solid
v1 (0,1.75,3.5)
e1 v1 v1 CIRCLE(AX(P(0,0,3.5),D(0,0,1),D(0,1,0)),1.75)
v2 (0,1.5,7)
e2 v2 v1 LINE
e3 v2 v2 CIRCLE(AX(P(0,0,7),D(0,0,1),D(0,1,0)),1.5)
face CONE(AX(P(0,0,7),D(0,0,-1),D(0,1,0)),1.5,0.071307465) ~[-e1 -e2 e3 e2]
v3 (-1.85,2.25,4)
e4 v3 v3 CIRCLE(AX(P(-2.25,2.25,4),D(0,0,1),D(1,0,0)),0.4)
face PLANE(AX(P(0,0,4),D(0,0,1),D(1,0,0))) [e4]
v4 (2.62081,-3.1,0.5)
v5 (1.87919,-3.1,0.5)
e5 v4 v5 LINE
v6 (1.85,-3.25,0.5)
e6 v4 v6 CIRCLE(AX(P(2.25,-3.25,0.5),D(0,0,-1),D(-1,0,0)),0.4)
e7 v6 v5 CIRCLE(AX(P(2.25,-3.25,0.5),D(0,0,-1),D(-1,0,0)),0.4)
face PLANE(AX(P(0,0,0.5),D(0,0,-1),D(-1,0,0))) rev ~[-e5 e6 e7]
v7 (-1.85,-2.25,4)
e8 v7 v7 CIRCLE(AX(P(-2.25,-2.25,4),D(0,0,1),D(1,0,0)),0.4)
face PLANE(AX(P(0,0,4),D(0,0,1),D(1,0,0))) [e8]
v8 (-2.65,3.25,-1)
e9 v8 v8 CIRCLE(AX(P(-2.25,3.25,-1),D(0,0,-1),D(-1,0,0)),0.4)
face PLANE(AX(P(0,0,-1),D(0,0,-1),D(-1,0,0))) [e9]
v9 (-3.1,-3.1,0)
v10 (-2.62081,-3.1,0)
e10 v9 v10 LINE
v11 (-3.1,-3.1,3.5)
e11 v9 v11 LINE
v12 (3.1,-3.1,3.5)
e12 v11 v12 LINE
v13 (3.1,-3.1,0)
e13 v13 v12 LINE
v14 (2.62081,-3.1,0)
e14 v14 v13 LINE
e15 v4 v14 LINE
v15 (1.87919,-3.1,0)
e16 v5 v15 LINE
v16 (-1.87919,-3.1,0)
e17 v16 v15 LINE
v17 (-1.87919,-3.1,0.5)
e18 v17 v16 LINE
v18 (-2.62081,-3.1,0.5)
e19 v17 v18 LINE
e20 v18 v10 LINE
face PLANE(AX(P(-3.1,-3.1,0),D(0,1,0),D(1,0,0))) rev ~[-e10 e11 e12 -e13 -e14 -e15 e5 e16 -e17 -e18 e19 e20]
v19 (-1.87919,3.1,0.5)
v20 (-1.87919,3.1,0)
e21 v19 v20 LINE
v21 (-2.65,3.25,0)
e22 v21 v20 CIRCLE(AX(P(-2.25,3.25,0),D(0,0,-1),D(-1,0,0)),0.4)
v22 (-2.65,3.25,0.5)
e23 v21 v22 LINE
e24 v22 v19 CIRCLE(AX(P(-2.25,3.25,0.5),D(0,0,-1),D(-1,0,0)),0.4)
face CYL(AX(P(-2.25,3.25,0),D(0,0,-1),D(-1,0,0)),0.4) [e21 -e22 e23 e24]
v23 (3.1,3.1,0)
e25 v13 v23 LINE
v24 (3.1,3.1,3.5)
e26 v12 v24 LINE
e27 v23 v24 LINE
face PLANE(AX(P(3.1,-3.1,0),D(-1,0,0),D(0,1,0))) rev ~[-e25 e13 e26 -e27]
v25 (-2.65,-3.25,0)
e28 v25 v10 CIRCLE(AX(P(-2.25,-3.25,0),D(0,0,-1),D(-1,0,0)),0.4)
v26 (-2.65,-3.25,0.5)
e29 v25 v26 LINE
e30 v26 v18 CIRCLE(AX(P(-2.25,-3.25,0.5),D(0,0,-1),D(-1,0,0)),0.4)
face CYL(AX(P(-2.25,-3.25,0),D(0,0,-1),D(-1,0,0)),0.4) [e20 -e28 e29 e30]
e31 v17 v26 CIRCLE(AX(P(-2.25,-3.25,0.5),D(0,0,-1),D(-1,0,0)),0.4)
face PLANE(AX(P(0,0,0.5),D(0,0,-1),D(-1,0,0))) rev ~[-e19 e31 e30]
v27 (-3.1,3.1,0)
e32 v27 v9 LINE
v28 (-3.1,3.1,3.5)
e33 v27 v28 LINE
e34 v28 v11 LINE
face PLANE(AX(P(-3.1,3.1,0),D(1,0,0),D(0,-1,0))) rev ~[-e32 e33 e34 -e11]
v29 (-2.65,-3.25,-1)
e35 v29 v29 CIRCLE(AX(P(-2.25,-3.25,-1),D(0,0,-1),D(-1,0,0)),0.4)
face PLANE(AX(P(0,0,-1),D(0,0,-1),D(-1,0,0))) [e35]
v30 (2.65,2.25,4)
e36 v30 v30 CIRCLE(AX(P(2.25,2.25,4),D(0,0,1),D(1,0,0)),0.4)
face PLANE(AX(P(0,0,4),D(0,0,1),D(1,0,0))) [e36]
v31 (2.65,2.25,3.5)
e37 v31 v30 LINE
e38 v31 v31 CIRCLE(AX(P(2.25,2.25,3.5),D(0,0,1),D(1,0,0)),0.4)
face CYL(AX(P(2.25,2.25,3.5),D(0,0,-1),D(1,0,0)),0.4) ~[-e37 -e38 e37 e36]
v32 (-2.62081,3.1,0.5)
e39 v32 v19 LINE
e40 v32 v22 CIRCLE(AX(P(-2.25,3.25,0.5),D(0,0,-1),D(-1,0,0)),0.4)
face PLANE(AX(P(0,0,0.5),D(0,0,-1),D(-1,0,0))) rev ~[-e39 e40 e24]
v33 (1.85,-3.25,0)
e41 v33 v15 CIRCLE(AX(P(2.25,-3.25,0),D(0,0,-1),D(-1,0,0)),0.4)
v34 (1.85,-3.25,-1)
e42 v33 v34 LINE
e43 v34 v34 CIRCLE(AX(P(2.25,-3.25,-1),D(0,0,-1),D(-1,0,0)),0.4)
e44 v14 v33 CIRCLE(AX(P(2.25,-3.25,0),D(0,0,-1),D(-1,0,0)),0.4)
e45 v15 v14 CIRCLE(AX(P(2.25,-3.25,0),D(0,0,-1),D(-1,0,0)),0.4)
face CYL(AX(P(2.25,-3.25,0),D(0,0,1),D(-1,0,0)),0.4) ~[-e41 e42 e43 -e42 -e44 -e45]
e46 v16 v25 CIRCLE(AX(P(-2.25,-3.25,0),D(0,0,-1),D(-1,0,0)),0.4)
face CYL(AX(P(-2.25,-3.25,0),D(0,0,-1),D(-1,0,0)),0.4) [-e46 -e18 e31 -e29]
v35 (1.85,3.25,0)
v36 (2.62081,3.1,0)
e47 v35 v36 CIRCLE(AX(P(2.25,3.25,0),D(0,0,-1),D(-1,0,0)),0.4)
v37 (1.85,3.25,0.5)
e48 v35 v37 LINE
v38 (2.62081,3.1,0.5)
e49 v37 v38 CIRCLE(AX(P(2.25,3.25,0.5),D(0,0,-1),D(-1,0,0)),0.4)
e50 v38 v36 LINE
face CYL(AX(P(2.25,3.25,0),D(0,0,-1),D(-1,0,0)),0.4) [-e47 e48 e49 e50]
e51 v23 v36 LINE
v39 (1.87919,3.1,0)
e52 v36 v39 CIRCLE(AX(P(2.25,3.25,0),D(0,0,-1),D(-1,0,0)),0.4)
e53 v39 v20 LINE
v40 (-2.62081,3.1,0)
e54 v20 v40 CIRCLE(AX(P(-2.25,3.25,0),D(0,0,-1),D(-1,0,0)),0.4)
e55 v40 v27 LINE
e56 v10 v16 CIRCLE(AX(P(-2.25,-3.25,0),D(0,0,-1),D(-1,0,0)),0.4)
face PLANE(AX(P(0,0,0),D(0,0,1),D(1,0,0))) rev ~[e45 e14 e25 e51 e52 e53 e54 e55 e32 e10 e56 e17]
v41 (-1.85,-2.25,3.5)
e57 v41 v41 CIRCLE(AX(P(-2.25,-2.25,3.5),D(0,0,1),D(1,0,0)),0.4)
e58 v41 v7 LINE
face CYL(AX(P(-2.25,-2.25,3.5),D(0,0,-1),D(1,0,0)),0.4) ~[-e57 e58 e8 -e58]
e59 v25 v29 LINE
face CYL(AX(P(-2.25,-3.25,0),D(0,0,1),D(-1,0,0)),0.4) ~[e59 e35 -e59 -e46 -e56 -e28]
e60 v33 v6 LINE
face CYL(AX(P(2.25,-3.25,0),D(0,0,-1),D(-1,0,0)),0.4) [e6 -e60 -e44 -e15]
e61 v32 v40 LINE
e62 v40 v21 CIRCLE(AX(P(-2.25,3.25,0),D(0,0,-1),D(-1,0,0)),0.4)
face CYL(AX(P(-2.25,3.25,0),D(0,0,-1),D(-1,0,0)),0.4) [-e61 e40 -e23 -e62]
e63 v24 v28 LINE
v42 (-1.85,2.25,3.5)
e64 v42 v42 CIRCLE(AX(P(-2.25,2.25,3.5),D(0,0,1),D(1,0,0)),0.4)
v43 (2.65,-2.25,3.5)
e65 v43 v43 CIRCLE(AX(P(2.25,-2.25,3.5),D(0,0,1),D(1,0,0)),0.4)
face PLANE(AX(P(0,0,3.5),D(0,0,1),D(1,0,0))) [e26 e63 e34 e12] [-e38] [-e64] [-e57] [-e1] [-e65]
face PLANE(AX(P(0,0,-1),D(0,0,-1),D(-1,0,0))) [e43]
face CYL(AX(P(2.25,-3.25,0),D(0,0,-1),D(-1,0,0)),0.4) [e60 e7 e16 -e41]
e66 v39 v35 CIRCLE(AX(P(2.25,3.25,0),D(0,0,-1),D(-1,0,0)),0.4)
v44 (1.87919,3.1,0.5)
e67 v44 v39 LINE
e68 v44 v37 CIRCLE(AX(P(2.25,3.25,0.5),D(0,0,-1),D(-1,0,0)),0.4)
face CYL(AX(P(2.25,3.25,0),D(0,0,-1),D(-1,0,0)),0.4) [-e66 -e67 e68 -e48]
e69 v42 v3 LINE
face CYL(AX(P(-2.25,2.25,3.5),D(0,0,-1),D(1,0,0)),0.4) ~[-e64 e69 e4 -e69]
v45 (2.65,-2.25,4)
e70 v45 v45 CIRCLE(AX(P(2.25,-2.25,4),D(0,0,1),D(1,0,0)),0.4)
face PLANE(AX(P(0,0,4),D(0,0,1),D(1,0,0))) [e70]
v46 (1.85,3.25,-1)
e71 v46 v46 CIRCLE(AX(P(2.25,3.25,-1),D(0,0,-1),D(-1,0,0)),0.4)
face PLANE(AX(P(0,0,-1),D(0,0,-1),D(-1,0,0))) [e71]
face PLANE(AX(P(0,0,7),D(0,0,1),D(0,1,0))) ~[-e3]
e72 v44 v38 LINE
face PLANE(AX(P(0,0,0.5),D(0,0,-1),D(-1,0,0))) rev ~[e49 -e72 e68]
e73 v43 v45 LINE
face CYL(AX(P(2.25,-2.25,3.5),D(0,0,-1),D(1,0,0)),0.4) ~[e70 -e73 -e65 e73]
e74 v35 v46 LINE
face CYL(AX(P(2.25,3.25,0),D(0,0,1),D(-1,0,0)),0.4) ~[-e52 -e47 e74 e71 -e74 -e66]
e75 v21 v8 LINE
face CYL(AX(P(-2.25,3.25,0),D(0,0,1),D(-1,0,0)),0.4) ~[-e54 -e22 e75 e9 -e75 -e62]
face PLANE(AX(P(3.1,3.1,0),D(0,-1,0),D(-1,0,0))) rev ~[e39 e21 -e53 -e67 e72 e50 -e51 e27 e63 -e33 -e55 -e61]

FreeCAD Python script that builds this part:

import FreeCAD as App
import Part
import Sketcher
from FreeCAD import Vector


def add_polygon(sketch, points):
    """Adds a closed chain of lines whose ends are joined by coincident constraints."""
    first, n = sketch.GeometryCount, len(points)
    for a, b in zip(points, points[1:] + points[:1]):
        sketch.addGeometry(Part.LineSegment(App.Vector(*a, 0), App.Vector(*b, 0)), False)
    for i in range(n):
        sketch.addConstraint(Sketcher.Constraint("Coincident", first + i, 2, first + (i + 1) % n, 1))

doc = App.newDocument("Part")
params = doc.addObject("Spreadsheet::Sheet", "Params")
for row, (alias, value) in enumerate([
    ("sketch1_width", "6.2 mm"),
    ("pad1_length", "3.5 mm"),
    ("sketch2_diameter", "0.8 mm"),
    ("pad2_length", "0.5 mm"),
    ("sketch3_width", "1.5 mm"),
    ("sketch3_height", "3.5 mm"),
    ("sketch3_width2", "1.75 mm"),
    ("revolution_angle", "360 deg"),
    ("sketch4_diameter", "0.8 mm"),
    ("pad3_length", "1 mm"),
    ("pad3_length2", "0.5 mm"),
], start=1):
    params.set(f"A{row}", alias)
    params.set(f"B{row}", "=" + value)
    params.setAlias(f"B{row}", alias)

body = doc.addObject("PartDesign::Body", "Body")

sketch1 = body.newObject("Sketcher::SketchObject", "Sketch")
sketch1.AttachmentSupport = (doc.getObject("XY_Plane"), [""])
sketch1.MapMode = "FlatFace"
add_polygon(sketch1, [(-3, 3), (-3, -3), (3, -3), (3, 3)])
sketch1.addConstraint(Sketcher.Constraint("Vertical", 0))
sketch1.addConstraint(Sketcher.Constraint("Horizontal", 1))
sketch1.addConstraint(Sketcher.Constraint("Vertical", 2))
sketch1.addConstraint(Sketcher.Constraint("Horizontal", 3))
sketch1.addConstraint(Sketcher.Constraint("Symmetric", 0, 2, 2, 2, -1, 1))
sketch1.addConstraint(Sketcher.Constraint("Equal", 3, 0))
sketch1.addConstraint(Sketcher.Constraint("DistanceX", 1, 1, 1, 2, 6.2))
sketch1.setExpression("Constraints[10]", "Params.sketch1_width")
pad1 = body.newObject("PartDesign::Pad", "Pad")
pad1.Profile = sketch1
pad1.setExpression("Length", "Params.pad1_length")

sketch2 = body.newObject("Sketcher::SketchObject", "Sketch001")
sketch2.AttachmentSupport = (doc.getObject("XY_Plane"), [""])
sketch2.MapMode = "FlatFace"
sketch2.AttachmentOffset = App.Placement(Vector(0, 0, 3.5), App.Rotation())
sketch2.addGeometry(Part.Circle(Vector(-2.25, 2.25, 0), Vector(0, 0, 1), 0.4), False)
sketch2.addGeometry(Part.Circle(Vector(2.25, 2.25, 0), Vector(0, 0, 1), 0.4), False)
sketch2.addGeometry(Part.Circle(Vector(2.25, -2.25, 0), Vector(0, 0, 1), 0.4), False)
sketch2.addGeometry(Part.Circle(Vector(-2.25, -2.25, 0), Vector(0, 0, 1), 0.4), False)
sketch2.addConstraint(Sketcher.Constraint("Equal", 0, 1))
sketch2.addConstraint(Sketcher.Constraint("Equal", 1, 2))
sketch2.addConstraint(Sketcher.Constraint("Equal", 2, 3))
sketch2.addConstraint(Sketcher.Constraint("Symmetric", 0, 3, 2, 3, -1, 1))
sketch2.addConstraint(Sketcher.Constraint("Symmetric", 1, 3, 3, 3, -1, 1))
sketch2.addConstraint(Sketcher.Constraint("Symmetric", 0, 3, 1, 3, -2))
sketch2.addConstraint(Sketcher.Constraint("Diameter", 0, 0.8))
sketch2.addConstraint(Sketcher.Constraint("DistanceX", 0, 3, 1, 3, 4.5))
sketch2.addConstraint(Sketcher.Constraint("DistanceY", 2, 3, 1, 3, 4.5))
sketch2.setExpression("Constraints[6]", "Params.sketch2_diameter")
pad2 = body.newObject("PartDesign::Pad", "Pad001")
pad2.Profile = sketch2
pad2.setExpression("Length", "Params.pad2_length")

sketch3 = body.newObject("Sketcher::SketchObject", "Sketch002")
sketch3.AttachmentSupport = (doc.getObject("YZ_Plane"), [""])
sketch3.MapMode = "FlatFace"
add_polygon(sketch3, [(0, 3.5), (1.8, 3.5), (1.5, 7), (0, 7)])
sketch3.addConstraint(Sketcher.Constraint("Horizontal", 0))
sketch3.addConstraint(Sketcher.Constraint("Horizontal", 2))
sketch3.addConstraint(Sketcher.Constraint("Vertical", 3))
sketch3.addConstraint(Sketcher.Constraint("PointOnObject", 2, 2, -2))
sketch3.addConstraint(Sketcher.Constraint("DistanceX", 2, 2, 2, 1, 1.5))
sketch3.addConstraint(Sketcher.Constraint("DistanceY", 3, 2, 3, 1, 3.5))
sketch3.addConstraint(Sketcher.Constraint("DistanceX", 0, 1, 0, 2, 1.75))
sketch3.addConstraint(Sketcher.Constraint("DistanceY", -1, 1, 0, 2, 3.5))
sketch3.setExpression("Constraints[8]", "Params.sketch3_width")
sketch3.setExpression("Constraints[9]", "Params.sketch3_height")
sketch3.setExpression("Constraints[10]", "Params.sketch3_width2")
revolution = body.newObject("PartDesign::Revolution", "Revolution")
revolution.Profile = sketch3
revolution.ReferenceAxis = (sketch3, ["V_Axis"])
revolution.setExpression("Angle", "Params.revolution_angle")

sketch4 = body.newObject("Sketcher::SketchObject", "Sketch003")
sketch4.AttachmentSupport = (doc.getObject("XY_Plane"), [""])
sketch4.MapMode = "FlatFace"
sketch4.addGeometry(Part.Circle(Vector(2.25, 3.25, 0), Vector(0, 0, 1), 0.4), False)
sketch4.addGeometry(Part.Circle(Vector(-2.25, 3.25, 0), Vector(0, 0, 1), 0.4), False)
sketch4.addGeometry(Part.Circle(Vector(-2.25, -3.25, 0), Vector(0, 0, 1), 0.4), False)
sketch4.addGeometry(Part.Circle(Vector(2.25, -3.25, 0), Vector(0, 0, 1), 0.4), False)
sketch4.addConstraint(Sketcher.Constraint("Equal", 0, 1))
sketch4.addConstraint(Sketcher.Constraint("Equal", 1, 2))
sketch4.addConstraint(Sketcher.Constraint("Equal", 2, 3))
sketch4.addConstraint(Sketcher.Constraint("Symmetric", 0, 3, 2, 3, -1, 1))
sketch4.addConstraint(Sketcher.Constraint("Symmetric", 1, 3, 3, 3, -1, 1))
sketch4.addConstraint(Sketcher.Constraint("Symmetric", 0, 3, 1, 3, -2))
sketch4.addConstraint(Sketcher.Constraint("Diameter", 0, 0.8))
sketch4.addConstraint(Sketcher.Constraint("DistanceX", 1, 3, 0, 3, 4.5))
sketch4.addConstraint(Sketcher.Constraint("DistanceY", 2, 3, 1, 3, 6.5))
sketch4.setExpression("Constraints[6]", "Params.sketch4_diameter")
pad3 = body.newObject("PartDesign::Pad", "Pad002")
pad3.Profile = sketch4
pad3.Type = "TwoLengths"
pad3.setExpression("Length", "Params.pad3_length")
pad3.setExpression("Length2", "Params.pad3_length2")
pad3.Reversed = True

doc.recompute()
